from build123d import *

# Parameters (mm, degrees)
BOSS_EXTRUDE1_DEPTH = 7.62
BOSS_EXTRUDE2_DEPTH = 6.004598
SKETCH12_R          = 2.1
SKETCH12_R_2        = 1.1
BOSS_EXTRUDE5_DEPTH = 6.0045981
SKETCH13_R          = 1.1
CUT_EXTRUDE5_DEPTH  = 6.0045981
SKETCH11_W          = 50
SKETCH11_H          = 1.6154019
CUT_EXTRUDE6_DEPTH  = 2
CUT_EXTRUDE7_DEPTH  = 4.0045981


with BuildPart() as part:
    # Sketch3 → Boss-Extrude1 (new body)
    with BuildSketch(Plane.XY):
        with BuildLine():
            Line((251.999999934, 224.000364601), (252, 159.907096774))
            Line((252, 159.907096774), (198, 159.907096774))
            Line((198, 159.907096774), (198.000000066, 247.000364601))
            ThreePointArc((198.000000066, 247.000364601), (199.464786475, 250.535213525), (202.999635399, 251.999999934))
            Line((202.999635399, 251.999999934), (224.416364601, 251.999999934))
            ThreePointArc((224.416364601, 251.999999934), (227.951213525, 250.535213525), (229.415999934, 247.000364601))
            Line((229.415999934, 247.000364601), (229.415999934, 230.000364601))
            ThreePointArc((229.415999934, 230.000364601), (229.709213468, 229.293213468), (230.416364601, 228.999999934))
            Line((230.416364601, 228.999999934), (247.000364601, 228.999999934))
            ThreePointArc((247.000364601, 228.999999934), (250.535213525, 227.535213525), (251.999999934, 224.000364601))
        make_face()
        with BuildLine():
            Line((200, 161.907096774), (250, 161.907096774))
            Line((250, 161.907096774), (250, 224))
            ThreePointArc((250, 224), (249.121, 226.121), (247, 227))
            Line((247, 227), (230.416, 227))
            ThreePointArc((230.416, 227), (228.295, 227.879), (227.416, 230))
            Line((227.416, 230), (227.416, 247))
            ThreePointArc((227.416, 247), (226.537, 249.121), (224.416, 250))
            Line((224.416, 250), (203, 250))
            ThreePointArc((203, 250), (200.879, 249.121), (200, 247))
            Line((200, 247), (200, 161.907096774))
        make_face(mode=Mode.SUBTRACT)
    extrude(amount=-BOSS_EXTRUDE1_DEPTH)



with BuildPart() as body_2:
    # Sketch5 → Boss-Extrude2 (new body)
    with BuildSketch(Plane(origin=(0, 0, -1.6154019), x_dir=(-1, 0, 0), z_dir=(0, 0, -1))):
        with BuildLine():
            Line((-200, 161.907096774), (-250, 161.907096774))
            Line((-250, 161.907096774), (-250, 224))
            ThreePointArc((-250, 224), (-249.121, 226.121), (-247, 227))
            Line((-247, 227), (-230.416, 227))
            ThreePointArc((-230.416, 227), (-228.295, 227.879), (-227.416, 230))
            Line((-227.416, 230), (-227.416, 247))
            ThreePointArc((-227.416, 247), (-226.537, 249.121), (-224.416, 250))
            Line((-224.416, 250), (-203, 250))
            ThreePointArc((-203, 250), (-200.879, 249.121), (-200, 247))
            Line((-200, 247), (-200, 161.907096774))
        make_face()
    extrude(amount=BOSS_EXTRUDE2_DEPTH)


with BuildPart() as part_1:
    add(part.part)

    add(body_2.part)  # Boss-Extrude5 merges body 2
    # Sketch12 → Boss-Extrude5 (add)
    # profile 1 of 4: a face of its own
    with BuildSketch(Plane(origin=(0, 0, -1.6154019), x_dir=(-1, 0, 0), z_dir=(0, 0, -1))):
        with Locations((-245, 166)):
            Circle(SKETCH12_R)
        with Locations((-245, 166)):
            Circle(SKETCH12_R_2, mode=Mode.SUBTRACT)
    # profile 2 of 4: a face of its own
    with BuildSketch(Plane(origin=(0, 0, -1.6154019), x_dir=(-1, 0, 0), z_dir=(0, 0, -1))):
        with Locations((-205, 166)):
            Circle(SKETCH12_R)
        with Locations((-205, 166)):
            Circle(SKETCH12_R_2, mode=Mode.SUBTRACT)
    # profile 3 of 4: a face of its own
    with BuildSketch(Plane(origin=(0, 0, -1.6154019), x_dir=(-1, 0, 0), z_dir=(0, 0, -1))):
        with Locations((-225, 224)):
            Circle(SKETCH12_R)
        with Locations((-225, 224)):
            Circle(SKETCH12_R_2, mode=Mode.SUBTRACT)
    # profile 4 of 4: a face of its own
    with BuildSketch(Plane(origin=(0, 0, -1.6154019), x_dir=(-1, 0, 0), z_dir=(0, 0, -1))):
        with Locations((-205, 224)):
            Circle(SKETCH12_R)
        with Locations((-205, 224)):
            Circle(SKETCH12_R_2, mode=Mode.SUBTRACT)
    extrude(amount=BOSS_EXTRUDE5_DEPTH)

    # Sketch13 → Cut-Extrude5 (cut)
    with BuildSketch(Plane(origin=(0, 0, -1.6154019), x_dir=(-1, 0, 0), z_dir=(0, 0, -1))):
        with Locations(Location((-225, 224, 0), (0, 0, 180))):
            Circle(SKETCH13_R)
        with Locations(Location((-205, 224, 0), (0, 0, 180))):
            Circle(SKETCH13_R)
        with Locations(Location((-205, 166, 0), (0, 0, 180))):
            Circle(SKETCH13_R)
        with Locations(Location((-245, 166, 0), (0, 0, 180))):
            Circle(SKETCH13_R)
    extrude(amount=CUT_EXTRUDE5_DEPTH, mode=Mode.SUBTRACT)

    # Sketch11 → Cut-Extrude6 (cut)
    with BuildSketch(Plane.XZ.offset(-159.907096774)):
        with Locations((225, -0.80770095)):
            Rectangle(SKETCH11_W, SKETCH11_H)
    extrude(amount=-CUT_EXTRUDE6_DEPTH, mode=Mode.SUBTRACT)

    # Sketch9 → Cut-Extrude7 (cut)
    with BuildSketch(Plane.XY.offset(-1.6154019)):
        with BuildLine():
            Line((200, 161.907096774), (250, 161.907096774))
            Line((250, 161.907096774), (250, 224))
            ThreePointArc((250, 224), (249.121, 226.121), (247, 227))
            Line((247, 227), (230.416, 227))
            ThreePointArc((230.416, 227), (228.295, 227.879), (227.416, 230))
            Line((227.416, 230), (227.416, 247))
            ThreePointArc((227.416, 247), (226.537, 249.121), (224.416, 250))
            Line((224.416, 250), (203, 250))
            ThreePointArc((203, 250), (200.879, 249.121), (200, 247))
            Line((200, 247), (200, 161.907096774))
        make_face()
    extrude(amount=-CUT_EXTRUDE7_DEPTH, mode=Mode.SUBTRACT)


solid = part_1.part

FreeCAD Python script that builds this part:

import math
import FreeCAD as App
import Part
import Sketcher

V = App.Vector


def add_polygon(sketch, points):
    """Adds a closed chain of lines whose ends are joined by coincident constraints."""
    first, n = sketch.GeometryCount, len(points)
    for a, b in zip(points, points[1:] + points[:1]):
        sketch.addGeometry(Part.LineSegment(App.Vector(*a, 0), App.Vector(*b, 0)), False)
    for i in range(n):
        sketch.addConstraint(Sketcher.Constraint("Coincident", first + i, 2, first + (i + 1) % n, 1))

doc = App.newDocument("Part")
body = doc.addObject("PartDesign::Body", "Body")

sketch1 = body.newObject("Sketcher::SketchObject", "Sketch")
sketch1.AttachmentSupport = (doc.getObject("XY_Plane"), [""])
sketch1.MapMode = "FlatFace"
sketch1.addGeometry(Part.LineSegment(V(252, 159.9, 0), V(252, 224, 0)), False)
sketch1.addGeometry(Part.ArcOfCircle(Part.Circle(V(247, 224, 0), V(0, 0, 1), 5), math.radians(0), math.radians(90)), False)
sketch1.addGeometry(Part.LineSegment(V(247, 229, 0), V(230.4, 229, 0)), False)
sketch1.addGeometry(Part.ArcOfCircle(Part.Circle(V(230.4, 230, 0), V(0, 0, 1), 1), math.radians(-180), math.radians(-90)), False)
sketch1.addGeometry(Part.LineSegment(V(229.4, 230, 0), V(229.4, 247, 0)), False)
sketch1.addGeometry(Part.ArcOfCircle(Part.Circle(V(224.4, 247, 0), V(0, 0, 1), 5), math.radians(0), math.radians(90)), False)
sketch1.addGeometry(Part.LineSegment(V(224.4, 252, 0), V(203, 252, 0)), False)
sketch1.addGeometry(Part.ArcOfCircle(Part.Circle(V(203, 247, 0), V(0, 0, 1), 5), math.radians(90), math.radians(180)), False)
sketch1.addGeometry(Part.LineSegment(V(198, 247, 0), V(198, 159.9, 0)), False)
sketch1.addGeometry(Part.LineSegment(V(198, 159.9, 0), V(252, 159.9, 0)), False)
sketch1.addGeometry(Part.LineSegment(V(200, 161.9, 0), V(200, 247, 0)), False)
sketch1.addGeometry(Part.ArcOfCircle(Part.Circle(V(203, 247, 0), V(0, 0, 1), 3), math.radians(90), math.radians(180)), False)
sketch1.addGeometry(Part.LineSegment(V(203, 250, 0), V(224.4, 250, 0)), False)
sketch1.addGeometry(Part.ArcOfCircle(Part.Circle(V(224.4, 247, 0), V(0, 0, 1), 3), math.radians(0), math.radians(90)), False)
sketch1.addGeometry(Part.LineSegment(V(227.4, 247, 0), V(227.4, 230, 0)), False)
sketch1.addGeometry(Part.ArcOfCircle(Part.Circle(V(230.4, 230, 0), V(0, 0, 1), 3), math.radians(-180), math.radians(-90)), False)
sketch1.addGeometry(Part.LineSegment(V(230.4, 227, 0), V(247, 227, 0)), False)
sketch1.addGeometry(Part.ArcOfCircle(Part.Circle(V(247, 224, 0), V(0, 0, 1), 3), math.radians(0), math.radians(90)), False)
sketch1.addGeometry(Part.LineSegment(V(250, 224, 0), V(250, 161.9, 0)), False)
sketch1.addGeometry(Part.LineSegment(V(250, 161.9, 0), V(200, 161.9, 0)), False)
sketch1.addConstraint(Sketcher.Constraint("Coincident", 0, 2, 1, 1))
sketch1.addConstraint(Sketcher.Constraint("Coincident", 1, 2, 2, 1))
sketch1.addConstraint(Sketcher.Constraint("Coincident", 2, 2, 3, 2))
sketch1.addConstraint(Sketcher.Constraint("Coincident", 3, 1, 4, 1))
sketch1.addConstraint(Sketcher.Constraint("Coincident", 4, 2, 5, 1))
sketch1.addConstraint(Sketcher.Constraint("Coincident", 5, 2, 6, 1))
sketch1.addConstraint(Sketcher.Constraint("Coincident", 6, 2, 7, 1))
sketch1.addConstraint(Sketcher.Constraint("Coincident", 7, 2, 8, 1))
sketch1.addConstraint(Sketcher.Constraint("Coincident", 8, 2, 9, 1))
sketch1.addConstraint(Sketcher.Constraint("Coincident", 9, 2, 0, 1))
sketch1.addConstraint(Sketcher.Constraint("Coincident", 10, 2, 11, 2))
sketch1.addConstraint(Sketcher.Constraint("Coincident", 11, 1, 12, 1))
sketch1.addConstraint(Sketcher.Constraint("Coincident", 12, 2, 13, 2))
sketch1.addConstraint(Sketcher.Constraint("Coincident", 13, 1, 14, 1))
sketch1.addConstraint(Sketcher.Constraint("Coincident", 14, 2, 15, 1))
sketch1.addConstraint(Sketcher.Constraint("Coincident", 15, 2, 16, 1))
sketch1.addConstraint(Sketcher.Constraint("Coincident", 16, 2, 17, 2))
sketch1.addConstraint(Sketcher.Constraint("Coincident", 17, 1, 18, 1))
sketch1.addConstraint(Sketcher.Constraint("Coincident", 18, 2, 19, 1))
sketch1.addConstraint(Sketcher.Constraint("Coincident", 19, 2, 10, 1))
sketch1.addConstraint(Sketcher.Constraint("Vertical", 0))
sketch1.addConstraint(Sketcher.Constraint("Horizontal", 2))
sketch1.addConstraint(Sketcher.Constraint("Vertical", 4))
sketch1.addConstraint(Sketcher.Constraint("Horizontal", 6))
sketch1.addConstraint(Sketcher.Constraint("Vertical", 8))
sketch1.addConstraint(Sketcher.Constraint("Horizontal", 9))
sketch1.addConstraint(Sketcher.Constraint("Vertical", 10))
sketch1.addConstraint(Sketcher.Constraint("Horizontal", 12))
sketch1.addConstraint(Sketcher.Constraint("Vertical", 14))
sketch1.addConstraint(Sketcher.Constraint("Horizontal", 16))
sketch1.addConstraint(Sketcher.Constraint("Vertical", 18))
sketch1.addConstraint(Sketcher.Constraint("Horizontal", 19))
sketch1.addConstraint(Sketcher.Constraint("Coincident", 11, 3, 7, 3))
sketch1.addConstraint(Sketcher.Constraint("Coincident", 13, 3, 5, 3))
sketch1.addConstraint(Sketcher.Constraint("Coincident", 15, 3, 3, 3))
sketch1.addConstraint(Sketcher.Constraint("Coincident", 17, 3, 1, 3))
sketch1.addConstraint(Sketcher.Constraint("Equal", 1, 5))
sketch1.addConstraint(Sketcher.Constraint("Equal", 5, 7))
sketch1.addConstraint(Sketcher.Constraint("Equal", 13, 15))
sketch1.addConstraint(Sketcher.Constraint("Horizontal", 4, 2, 7, 2))
sketch1.addConstraint(Sketcher.Constraint("Horizontal", 10, 2, 13, 1))
sketch1.addConstraint(Sketcher.Constraint("Equal", 2, 16))
sketch1.addConstraint(Sketcher.Constraint("Equal", 4, 14))
sketch1.addConstraint(Sketcher.Constraint("DistanceX", 9, 1, 9, 2, 54.0))
sketch1.addConstraint(Sketcher.Constraint("DistanceX", 19, 2, 19, 1, 50.0))
sketch1.addConstraint(Sketcher.Constraint("DistanceY", 4, 1, 4, 2, 17.0))
sketch1.addConstraint(Sketcher.Constraint("DistanceX", -1, 1, 0, 2, 252.0))
sketch1.addConstraint(Sketcher.Constraint("DistanceY", -1, 1, 1, 2, 229.0))
sketch1.addConstraint(Sketcher.Constraint("DistanceY", -1, 1, 5, 2, 252.0))
sketch1.addConstraint(Sketcher.Constraint("DistanceY", -1, 1, 10, 2, 247.0))
sketch1.addConstraint(Sketcher.Constraint("DistanceX", -1, 1, 11, 1, 203.0))
sketch1.addConstraint(Sketcher.Constraint("DistanceX", -1, 1, 16, 2, 247.0))
sketch1.addConstraint(Sketcher.Constraint("DistanceY", -1, 1, 17, 1, 224.0))
sketch1.addConstraint(Sketcher.Constraint("DistanceX", 12, 2, 4, 2, 5.0))
sketch1.addConstraint(Sketcher.Constraint("DistanceX", 3, 1, 15, 2, 1.0))
sketch1.addConstraint(Sketcher.Constraint("DistanceY", 9, 2, 18, 2, 2.0))
sketch1.addConstraint(Sketcher.Constraint("DistanceX", 2, 2, 2, 1, 16.584))
sketch1.addConstraint(Sketcher.Constraint("Radius", 1, 5.001094))
sketch1.addConstraint(Sketcher.Constraint("DistanceX", 6, 2, 6, 1, 21.416729))
sketch1.addConstraint(Sketcher.Constraint("DistanceY", 0, 1, 0, 2, 64.093268))
sketch1.addConstraint(Sketcher.Constraint("DistanceY", 8, 2, 8, 1, 87.093268))
sketch1.addConstraint(Sketcher.Constraint("DistanceY", 10, 1, 10, 2, 85.092903))
sketch1.addConstraint(Sketcher.Constraint("DistanceX", 1, 3, 1, 2, 0.001459))
sketch1.addConstraint(Sketcher.Constraint("DistanceX", 5, 3, 5, 2, 0.001459))
pad1 = body.newObject("PartDesign::Pad", "Pad")
pad1.Profile = sketch1
pad1.Length = 7.62
pad1.Reversed = True
body2 = doc.addObject("PartDesign::Body", "Body001")

sketch2 = body2.newObject("Sketcher::SketchObject", "Sketch001")
sketch2.AttachmentSupport = (doc.getObject("XY_Plane001"), [""])
sketch2.MapMode = "FlatFace"
sketch2.AttachmentOffset = App.Placement(V(0, 0, -1.615402), App.Rotation())
sketch2.addGeometry(Part.LineSegment(V(250, 161.9, 0), V(200, 161.9, 0)), False)
sketch2.addGeometry(Part.LineSegment(V(200, 161.9, 0), V(200, 247, 0)), False)
sketch2.addGeometry(Part.ArcOfCircle(Part.Circle(V(203, 247, 0), V(0, 0, 1), 3), math.radians(90), math.radians(180)), False)
sketch2.addGeometry(Part.LineSegment(V(203, 250, 0), V(224.4, 250, 0)), False)
sketch2.addGeometry(Part.ArcOfCircle(Part.Circle(V(224.4, 247, 0), V(0, 0, 1), 3), math.radians(0), math.radians(90)), False)
sketch2.addGeometry(Part.LineSegment(V(227.4, 247, 0), V(227.4, 230, 0)), False)
sketch2.addGeometry(Part.ArcOfCircle(Part.Circle(V(230.4, 230, 0), V(0, 0, 1), 3), math.radians(-180), math.radians(-90)), False)
sketch2.addGeometry(Part.LineSegment(V(230.4, 227, 0), V(247, 227, 0)), False)
sketch2.addGeometry(Part.ArcOfCircle(Part.Circle(V(247, 224, 0), V(0, 0, 1), 3), math.radians(0), math.radians(90)), False)
sketch2.addGeometry(Part.LineSegment(V(250, 224, 0), V(250, 161.9, 0)), False)
sketch2.addConstraint(Sketcher.Constraint("Coincident", 0, 2, 1, 1))
sketch2.addConstraint(Sketcher.Constraint("Coincident", 1, 2, 2, 2))
sketch2.addConstraint(Sketcher.Constraint("Coincident", 2, 1, 3, 1))
sketch2.addConstraint(Sketcher.Constraint("Coincident", 3, 2, 4, 2))
sketch2.addConstraint(Sketcher.Constraint("Coincident", 4, 1, 5, 1))
sketch2.addConstraint(Sketcher.Constraint("Coincident", 5, 2, 6, 1))
sketch2.addConstraint(Sketcher.Constraint("Coincident", 6, 2, 7, 1))
sketch2.addConstraint(Sketcher.Constraint("Coincident", 7, 2, 8, 2))
sketch2.addConstraint(Sketcher.Constraint("Coincident", 8, 1, 9, 1))
sketch2.addConstraint(Sketcher.Constraint("Coincident", 9, 2, 0, 1))
sketch2.addConstraint(Sketcher.Constraint("Horizontal", 0))
sketch2.addConstraint(Sketcher.Constraint("Vertical", 1))
sketch2.addConstraint(Sketcher.Constraint("Horizontal", 3))
sketch2.addConstraint(Sketcher.Constraint("Vertical", 5))
sketch2.addConstraint(Sketcher.Constraint("Horizontal", 7))
sketch2.addConstraint(Sketcher.Constraint("Vertical", 9))
sketch2.addConstraint(Sketcher.Constraint("Equal", 2, 4))
sketch2.addConstraint(Sketcher.Constraint("Equal", 4, 6))
sketch2.addConstraint(Sketcher.Constraint("Equal", 6, 8))
sketch2.addConstraint(Sketcher.Constraint("Horizontal", 1, 2, 4, 1))
sketch2.addConstraint(Sketcher.Constraint("DistanceX", 0, 2, 0, 1, 50.0))
sketch2.addConstraint(Sketcher.Constraint("DistanceY", 5, 2, 5, 1, 17.0))
sketch2.addConstraint(Sketcher.Constraint("DistanceX", -1, 1, 0, 2, 200.0))
sketch2.addConstraint(Sketcher.Constraint("DistanceY", -1, 1, 1, 2, 247.0))
sketch2.addConstraint(Sketcher.Constraint("DistanceX", -1, 1, 2, 1, 203.0))
sketch2.addConstraint(Sketcher.Constraint("DistanceY", -1, 1, 2, 1, 250.0))
sketch2.addConstraint(Sketcher.Constraint("DistanceY", -1, 1, 6, 2, 227.0))
sketch2.addConstraint(Sketcher.Constraint("DistanceX", -1, 1, 7, 2, 247.0))
sketch2.addConstraint(Sketcher.Constraint("DistanceY", -1, 1, 8, 1, 224.0))
sketch2.addConstraint(Sketcher.Constraint("DistanceX", 3, 2, 4, 1, 3.0))
sketch2.addConstraint(Sketcher.Constraint("DistanceX", 5, 2, 6, 2, 3.0))
sketch2.addConstraint(Sketcher.Constraint("DistanceX", 3, 1, 3, 2, 21.416))
sketch2.addConstraint(Sketcher.Constraint("Radius", 2, 3.001094))
sketch2.addConstraint(Sketcher.Constraint("DistanceY", 1, 1, 1, 2, 85.092903))
pad2 = body2.newObject("PartDesign::Pad", "Pad001")
pad2.Profile = sketch2
pad2.Length = 6.004598
pad2.Reversed = True
doc.recompute()

boolean = body.newObject("PartDesign::Boolean", "Boolean")
boolean.Type = "Fuse"
boolean.addObjects([body2])

sketch3 = body.newObject("Sketcher::SketchObject", "Sketch002")
sketch3.AttachmentSupport = (doc.getObject("XY_Plane"), [""])
sketch3.MapMode = "FlatFace"
sketch3.AttachmentOffset = App.Placement(V(0, 0, -1.615402), App.Rotation())
sketch3.addGeometry(Part.Circle(V(245, 166, 0), V(0, 0, 1), 2.1), False)
sketch3.addGeometry(Part.Circle(V(245, 166, 0), V(0, 0, 1), 1.1), False)
sketch3.addGeometry(Part.Circle(V(205, 166, 0), V(0, 0, 1), 2.1), False)
sketch3.addGeometry(Part.Circle(V(205, 166, 0), V(0, 0, 1), 1.1), False)
sketch3.addGeometry(Part.Circle(V(225, 224, 0), V(0, 0, 1), 2.1), False)
sketch3.addGeometry(Part.Circle(V(225, 224, 0), V(0, 0, 1), 1.1), False)
sketch3.addGeometry(Part.Circle(V(205, 224, 0), V(0, 0, 1), 2.1), False)
sketch3.addGeometry(Part.Circle(V(205, 224, 0), V(0, 0, 1), 1.1), False)
sketch3.addConstraint(Sketcher.Constraint("Coincident", 1, 3, 0, 3))
sketch3.addConstraint(Sketcher.Constraint("Coincident", 3, 3, 2, 3))
sketch3.addConstraint(Sketcher.Constraint("Coincident", 5, 3, 4, 3))
sketch3.addConstraint(Sketcher.Constraint("Coincident", 7, 3, 6, 3))
sketch3.addConstraint(Sketcher.Constraint("Equal", 0, 2))
sketch3.addConstraint(Sketcher.Constraint("Equal", 1, 3))
sketch3.addConstraint(Sketcher.Constraint("Equal", 2, 4))
sketch3.addConstraint(Sketcher.Constraint("Equal", 3, 5))
sketch3.addConstraint(Sketcher.Constraint("Equal", 4, 6))
sketch3.addConstraint(Sketcher.Constraint("Equal", 5, 7))
sketch3.addConstraint(Sketcher.Constraint("Horizontal", 1, 3, 2, 3))
sketch3.addConstraint(Sketcher.Constraint("Horizontal", 5, 3, 6, 3))
sketch3.addConstraint(Sketcher.Constraint("Vertical", 3, 3, 6, 3))
sketch3.addConstraint(Sketcher.Constraint("Diameter", 0, 4.2))
sketch3.addConstraint(Sketcher.Constraint("Diameter", 1, 2.2))
sketch3.addConstraint(Sketcher.Constraint("DistanceX", -1, 1, 0, 3, 245.0))
sketch3.addConstraint(Sketcher.Constraint("DistanceY", -1, 1, 0, 3, 166.0))
sketch3.addConstraint(Sketcher.Constraint("DistanceX", -1, 1, 2, 3, 205.0))
sketch3.addConstraint(Sketcher.Constraint("DistanceX", -1, 1, 4, 3, 225.0))
sketch3.addConstraint(Sketcher.Constraint("DistanceY", -1, 1, 4, 3, 224.0))
pad3 = body.newObject("PartDesign::Pad", "Pad002")
pad3.Profile = sketch3
pad3.Length = 6.004598
pad3.Reversed = True

sketch4 = body.newObject("Sketcher::SketchObject", "Sketch003")
sketch4.AttachmentSupport = (doc.getObject("XY_Plane"), [""])
sketch4.MapMode = "FlatFace"
sketch4.AttachmentOffset = App.Placement(V(0, 0, -1.615402), App.Rotation())
sketch4.addGeometry(Part.Circle(V(225, 224, 0), V(0, 0, 1), 1.1), False)
sketch4.addGeometry(Part.Circle(V(205, 224, 0), V(0, 0, 1), 1.1), False)
sketch4.addGeometry(Part.Circle(V(205, 166, 0), V(0, 0, 1), 1.1), False)
sketch4.addGeometry(Part.Circle(V(245, 166, 0), V(0, 0, 1), 1.1), False)
sketch4.addConstraint(Sketcher.Constraint("Equal", 0, 1))
sketch4.addConstraint(Sketcher.Constraint("Equal", 1, 2))
sketch4.addConstraint(Sketcher.Constraint("Equal", 2, 3))
sketch4.addConstraint(Sketcher.Constraint("Horizontal", 0, 3, 1, 3))
sketch4.addConstraint(Sketcher.Constraint("Horizontal", 2, 3, 3, 3))
sketch4.addConstraint(Sketcher.Constraint("Vertical", 1, 3, 2, 3))
sketch4.addConstraint(Sketcher.Constraint("Diameter", 0, 2.2))
sketch4.addConstraint(Sketcher.Constraint("DistanceX", -1, 1, 0, 3, 225.0))
sketch4.addConstraint(Sketcher.Constraint("DistanceY", -1, 1, 0, 3, 224.0))
sketch4.addConstraint(Sketcher.Constraint("DistanceX", -1, 1, 1, 3, 205.0))
sketch4.addConstraint(Sketcher.Constraint("DistanceY", -1, 1, 2, 3, 166.0))
sketch4.addConstraint(Sketcher.Constraint("DistanceX", -1, 1, 3, 3, 245.0))
pocket1 = body.newObject("PartDesign::Pocket", "Pocket")
pocket1.Profile = sketch4
pocket1.Length = 6.004598

sketch5 = body.newObject("Sketcher::SketchObject", "Sketch004")
sketch5.AttachmentSupport = (doc.getObject("XZ_Plane"), [""])
sketch5.MapMode = "FlatFace"
sketch5.AttachmentOffset = App.Placement(V(0, 0, -159.907097), App.Rotation())
add_polygon(sketch5, [(200, 0), (200, -1.6), (250, -1.6), (250, 0)])
sketch5.addConstraint(Sketcher.Constraint("Vertical", 0))
sketch5.addConstraint(Sketcher.Constraint("Horizontal", 1))
sketch5.addConstraint(Sketcher.Constraint("Vertical", 2))
sketch5.addConstraint(Sketcher.Constraint("Horizontal", 3))
sketch5.addConstraint(Sketcher.Constraint("PointOnObject", 2, 2, -1))
sketch5.addConstraint(Sketcher.Constraint("DistanceX", 1, 1, 1, 2, 50.0))
sketch5.addConstraint(Sketcher.Constraint("DistanceX", -1, 1, 0, 2, 200.0))
sketch5.addConstraint(Sketcher.Constraint("DistanceY", 0, 2, 0, 1, 1.615402))
pocket2 = body.newObject("PartDesign::Pocket", "Pocket001")
pocket2.Profile = sketch5
pocket2.Length = 2

sketch6 = body.newObject("Sketcher::SketchObject", "Sketch005")
sketch6.AttachmentSupport = (doc.getObject("XY_Plane"), [""])
sketch6.MapMode = "FlatFace"
sketch6.AttachmentOffset = App.Placement(V(0, 0, -1.615402), App.Rotation())
sketch6.addGeometry(Part.LineSegment(V(200, 161.9, 0), V(250, 161.9, 0)), False)
sketch6.addGeometry(Part.LineSegment(V(250, 161.9, 0), V(250, 224, 0)), False)
sketch6.addGeometry(Part.ArcOfCircle(Part.Circle(V(247, 224, 0), V(0, 0, 1), 3), math.radians(0), math.radians(90)), False)
sketch6.addGeometry(Part.LineSegment(V(247, 227, 0), V(230.4, 227, 0)), False)
sketch6.addGeometry(Part.ArcOfCircle(Part.Circle(V(230.4, 230, 0), V(0, 0, 1), 3), math.radians(-180), math.radians(-90)), False)
sketch6.addGeometry(Part.LineSegment(V(227.4, 230, 0), V(227.4, 247, 0)), False)
sketch6.addGeometry(Part.ArcOfCircle(Part.Circle(V(224.4, 247, 0), V(0, 0, 1), 3), math.radians(0), math.radians(90)), False)
sketch6.addGeometry(Part.LineSegment(V(224.4, 250, 0), V(203, 250, 0)), False)
sketch6.addGeometry(Part.ArcOfCircle(Part.Circle(V(203, 247, 0), V(0, 0, 1), 3), math.radians(90), math.radians(180)), False)
sketch6.addGeometry(Part.LineSegment(V(200, 247, 0), V(200, 161.9, 0)), False)
sketch6.addConstraint(Sketcher.Constraint("Coincident", 0, 2, 1, 1))
sketch6.addConstraint(Sketcher.Constraint("Coincident", 1, 2, 2, 1))
sketch6.addConstraint(Sketcher.Constraint("Coincident", 2, 2, 3, 1))
sketch6.addConstraint(Sketcher.Constraint("Coincident", 3, 2, 4, 2))
sketch6.addConstraint(Sketcher.Constraint("Coincident", 4, 1, 5, 1))
sketch6.addConstraint(Sketcher.Constraint("Coincident", 5, 2, 6, 1))
sketch6.addConstraint(Sketcher.Constraint("Coincident", 6, 2, 7, 1))
sketch6.addConstraint(Sketcher.Constraint("Coincident", 7, 2, 8, 1))
sketch6.addConstraint(Sketcher.Constraint("Coincident", 8, 2, 9, 1))
sketch6.addConstraint(Sketcher.Constraint("Coincident", 9, 2, 0, 1))
sketch6.addConstraint(Sketcher.Constraint("Horizontal", 0))
sketch6.addConstraint(Sketcher.Constraint("Vertical", 1))
sketch6.addConstraint(Sketcher.Constraint("Horizontal", 3))
sketch6.addConstraint(Sketcher.Constraint("Vertical", 5))
sketch6.addConstraint(Sketcher.Constraint("Horizontal", 7))
sketch6.addConstraint(Sketcher.Constraint("Vertical", 9))
sketch6.addConstraint(Sketcher.Constraint("Equal", 2, 4))
sketch6.addConstraint(Sketcher.Constraint("Equal", 4, 6))
sketch6.addConstraint(Sketcher.Constraint("Equal", 6, 8))
sketch6.addConstraint(Sketcher.Constraint("Horizontal", 5, 2, 8, 2))
sketch6.addConstraint(Sketcher.Constraint("DistanceX", 0, 1, 0, 2, 50.0))
sketch6.addConstraint(Sketcher.Constraint("DistanceY", 5, 1, 5, 2, 17.0))
sketch6.addConstraint(Sketcher.Constraint("DistanceX", -1, 1, 0, 2, 250.0))
sketch6.addConstraint(Sketcher.Constraint("DistanceY", -1, 1, 1, 2, 224.0))
sketch6.addConstraint(Sketcher.Constraint("DistanceX", -1, 1, 2, 2, 247.0))
sketch6.addConstraint(Sketcher.Constraint("DistanceY", -1, 1, 2, 2, 227.0))
sketch6.addConstraint(Sketcher.Constraint("DistanceY", -1, 1, 4, 1, 230.0))
sketch6.addConstraint(Sketcher.Constraint("DistanceY", -1, 1, 6, 2, 250.0))
sketch6.addConstraint(Sketcher.Constraint("DistanceX", -1, 1, 7, 2, 203.0))
sketch6.addConstraint(Sketcher.Constraint("DistanceX", 4, 1, 3, 2, 3.0))
sketch6.addConstraint(Sketcher.Constraint("DistanceX", 6, 2, 5, 2, 3.0))
sketch6.addConstraint(Sketcher.Constraint("DistanceX", 3, 2, 3, 1, 16.584))
sketch6.addConstraint(Sketcher.Constraint("Radius", 2, 3.001094))
sketch6.addConstraint(Sketcher.Constraint("DistanceY", 1, 1, 1, 2, 62.092903))
pocket3 = body.newObject("PartDesign::Pocket", "Pocket002")
pocket3.Profile = sketch6
pocket3.Length = 4.004598

doc.recompute()
